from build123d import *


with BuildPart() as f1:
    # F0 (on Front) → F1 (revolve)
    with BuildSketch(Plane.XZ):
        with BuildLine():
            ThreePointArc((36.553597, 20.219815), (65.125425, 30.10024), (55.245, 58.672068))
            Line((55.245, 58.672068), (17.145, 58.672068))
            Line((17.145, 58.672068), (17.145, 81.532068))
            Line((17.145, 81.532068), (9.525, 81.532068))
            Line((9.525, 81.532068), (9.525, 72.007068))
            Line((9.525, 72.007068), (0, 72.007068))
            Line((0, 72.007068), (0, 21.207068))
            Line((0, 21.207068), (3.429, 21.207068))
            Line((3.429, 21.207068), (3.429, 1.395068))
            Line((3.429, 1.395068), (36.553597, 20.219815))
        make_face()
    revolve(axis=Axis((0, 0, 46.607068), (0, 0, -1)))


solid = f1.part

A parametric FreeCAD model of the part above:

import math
import FreeCAD as App
import Part
import Sketcher
Q = App.Units.Quantity

doc = App.newDocument("Part")
params = doc.addObject("Spreadsheet::Sheet", "Params")
for row, (alias, value) in enumerate([
    ("sketch1_height", "2 in"),
    ("sketch1_width", "1.5 in"),
    ("sketch1_width2", "0.3 in"),
    ("sketch1_height2", "0.9 in"),
    ("sketch1_length", "1.5 in"),
    ("revolution_angle", "360 deg"),
], start=1):
    params.set(f"A{row}", alias)
    params.set(f"B{row}", "=" + value)
    params.setAlias(f"B{row}", alias)

body = doc.addObject("PartDesign::Body", "Body")

# Sketch on XZ plane
sketch1 = body.newObject("Sketcher::SketchObject", "Sketch")
sketch1.AttachmentSupport = (doc.getObject("XZ_Plane"), [""])
sketch1.MapMode = "FlatFace"
sketch1.addGeometry([
    Part.ArcOfCircle(Part.Circle(App.Vector(45.899299, 39.445942, 0), App.Vector(0, 0, 1), 21.377233), math.radians(-115.924101), math.radians(64.075899)),  # 0
    Part.LineSegment(App.Vector(55.245, 58.672068, 0), App.Vector(17.145, 58.672068, 0)),  # 1
    Part.LineSegment(App.Vector(17.145, 58.672068, 0), App.Vector(17.145, 81.532068, 0)),  # 2
    Part.LineSegment(App.Vector(17.145, 81.532068, 0), App.Vector(9.525, 81.532068, 0)),  # 3
    Part.LineSegment(App.Vector(9.525, 81.532068, 0), App.Vector(9.525, 72.007068, 0)),  # 4
    Part.LineSegment(App.Vector(9.525, 72.007068, 0), App.Vector(0, 72.007068, 0)),  # 5
    Part.LineSegment(App.Vector(0, 72.007068, 0), App.Vector(0, 21.207068, 0)),  # 6
    Part.LineSegment(App.Vector(0, 21.207068, 0), App.Vector(3.429, 21.207068, 0)),  # 7
    Part.LineSegment(App.Vector(3.429, 21.207068, 0), App.Vector(3.429, 1.395068, 0)),  # 8
    Part.LineSegment(App.Vector(3.429, 1.395068, 0), App.Vector(36.553597, 20.219815, 0)),  # 9
], False)
sketch1.addConstraint([
    Sketcher.Constraint("Coincident", 0, 2, 1, 1),
    Sketcher.Constraint("Coincident", 1, 2, 2, 1),
    Sketcher.Constraint("Coincident", 2, 2, 3, 1),
    Sketcher.Constraint("Coincident", 3, 2, 4, 1),
    Sketcher.Constraint("Coincident", 4, 2, 5, 1),
    Sketcher.Constraint("Coincident", 5, 2, 6, 1),
    Sketcher.Constraint("Coincident", 6, 2, 7, 1),
    Sketcher.Constraint("Coincident", 7, 2, 8, 1),
    Sketcher.Constraint("Coincident", 8, 2, 9, 1),
    Sketcher.Constraint("Coincident", 9, 2, 0, 1),
    Sketcher.Constraint("Horizontal", 1),
    Sketcher.Constraint("Vertical", 2),
    Sketcher.Constraint("Horizontal", 3),
    Sketcher.Constraint("Vertical", 4),
    Sketcher.Constraint("Horizontal", 5),
    Sketcher.Constraint("Vertical", 6),
    Sketcher.Constraint("Horizontal", 7),
    Sketcher.Constraint("Vertical", 8),
    Sketcher.Constraint("PointOnObject", 5, 2, -2),
    Sketcher.Constraint("Equal", 5, 4),
    Sketcher.Constraint("DistanceY", 6, 2, 6, 1, Q("2 in")),
    Sketcher.Constraint("DistanceX", 1, 2, 1, 1, Q("1.5 in")),
    Sketcher.Constraint("DistanceX", 3, 2, 3, 1, Q("0.3 in")),
    Sketcher.Constraint("DistanceY", 2, 1, 2, 2, Q("0.9 in")),
    Sketcher.Constraint("Distance", 9, Q("1.5 in")),
    Sketcher.Constraint("DistanceY", 8, 2, 8, 1, Q("0.78 in")),
    Sketcher.Constraint("DistanceX", 5, 2, 5, 1, Q("0.375 in")),
    Sketcher.Constraint("DistanceX", 7, 1, 7, 2, Q("0.135 in")),
    Sketcher.Constraint("Radius", 0, Q("21.377233 mm")),
    Sketcher.Constraint("DistanceX", -1, 1, 0, 3, Q("45.899299 mm")),
    Sketcher.Constraint("DistanceY", -1, 1, 0, 3, Q("39.445942 mm")),
])
sketch1.setExpression("Constraints[20]", "Params.sketch1_height")
sketch1.setExpression("Constraints[21]", "Params.sketch1_width")
sketch1.setExpression("Constraints[22]", "Params.sketch1_width2")
sketch1.setExpression("Constraints[23]", "Params.sketch1_height2")
sketch1.setExpression("Constraints[24]", "Params.sketch1_length")
revolution = body.newObject("PartDesign::Revolution", "Revolution")
revolution.Profile = sketch1
revolution.ReferenceAxis = (sketch1, ["V_Axis"])
revolution.setExpression("Angle", "Params.revolution_angle")

doc.recompute()
